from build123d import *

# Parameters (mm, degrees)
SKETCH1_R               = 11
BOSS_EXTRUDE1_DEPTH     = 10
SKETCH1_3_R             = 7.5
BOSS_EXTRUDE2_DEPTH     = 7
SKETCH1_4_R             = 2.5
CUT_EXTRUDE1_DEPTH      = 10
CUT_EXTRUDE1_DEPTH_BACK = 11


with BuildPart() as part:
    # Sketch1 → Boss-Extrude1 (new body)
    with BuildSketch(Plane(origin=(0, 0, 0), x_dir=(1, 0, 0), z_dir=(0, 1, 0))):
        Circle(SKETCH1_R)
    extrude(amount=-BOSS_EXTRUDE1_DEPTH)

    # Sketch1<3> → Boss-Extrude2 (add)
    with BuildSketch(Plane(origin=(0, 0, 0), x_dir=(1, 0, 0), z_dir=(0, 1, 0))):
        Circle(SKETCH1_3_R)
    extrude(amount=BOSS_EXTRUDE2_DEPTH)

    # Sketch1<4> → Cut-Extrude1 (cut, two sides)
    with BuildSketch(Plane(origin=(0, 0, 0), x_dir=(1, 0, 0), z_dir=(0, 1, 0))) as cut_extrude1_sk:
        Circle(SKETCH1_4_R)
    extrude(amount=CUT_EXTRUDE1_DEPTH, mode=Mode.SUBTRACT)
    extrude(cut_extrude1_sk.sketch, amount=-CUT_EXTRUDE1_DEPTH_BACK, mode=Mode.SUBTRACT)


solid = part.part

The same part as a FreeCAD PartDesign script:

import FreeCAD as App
import Part
import Sketcher
from FreeCAD import Vector
Q = App.Units.Quantity

doc = App.newDocument("Part")
body = doc.addObject("PartDesign::Body", "Body")

sketch1 = body.newObject("Sketcher::SketchObject", "Sketch")
sketch1.AttachmentSupport = (doc.getObject("XZ_Plane"), [""])
sketch1.MapMode = "FlatFace"
sketch1.addGeometry(Part.Circle(Vector(0, 0, 0), Vector(0, 0, 1), 11), False)
sketch1.addConstraint([
    Sketcher.Constraint("Coincident", 0, 3, -1, 1),
    Sketcher.Constraint("Diameter", 0, Q("22 mm")),
])
pad1 = body.newObject("PartDesign::Pad", "Pad")
pad1.Profile = sketch1
pad1.Length = 10

sketch2 = body.newObject("Sketcher::SketchObject", "Sketch001")
sketch2.AttachmentSupport = (doc.getObject("XZ_Plane"), [""])
sketch2.MapMode = "FlatFace"
sketch2.addGeometry(Part.Circle(Vector(0, 0, 0), Vector(0, 0, 1), 8), False)
sketch2.addConstraint([
    Sketcher.Constraint("Coincident", 0, 3, -1, 1),
    Sketcher.Constraint("Diameter", 0, Q("15 mm")),
])
pad2 = body.newObject("PartDesign::Pad", "Pad001")
pad2.Profile = sketch2
pad2.Length = 7
pad2.Reversed = True

sketch3 = body.newObject("Sketcher::SketchObject", "Sketch002")
sketch3.AttachmentSupport = (doc.getObject("XZ_Plane"), [""])
sketch3.MapMode = "FlatFace"
sketch3.addGeometry(Part.Circle(Vector(0, 0, 0), Vector(0, 0, 1), 2.5), False)
sketch3.addConstraint([
    Sketcher.Constraint("Coincident", 0, 3, -1, 1),
    Sketcher.Constraint("Diameter", 0, Q("5 mm")),
])
pocket1 = body.newObject("PartDesign::Pocket", "Pocket")
pocket1.Profile = sketch3
pocket1.Type = "ThroughAll"
pocket1.Midplane = True

doc.recompute()
